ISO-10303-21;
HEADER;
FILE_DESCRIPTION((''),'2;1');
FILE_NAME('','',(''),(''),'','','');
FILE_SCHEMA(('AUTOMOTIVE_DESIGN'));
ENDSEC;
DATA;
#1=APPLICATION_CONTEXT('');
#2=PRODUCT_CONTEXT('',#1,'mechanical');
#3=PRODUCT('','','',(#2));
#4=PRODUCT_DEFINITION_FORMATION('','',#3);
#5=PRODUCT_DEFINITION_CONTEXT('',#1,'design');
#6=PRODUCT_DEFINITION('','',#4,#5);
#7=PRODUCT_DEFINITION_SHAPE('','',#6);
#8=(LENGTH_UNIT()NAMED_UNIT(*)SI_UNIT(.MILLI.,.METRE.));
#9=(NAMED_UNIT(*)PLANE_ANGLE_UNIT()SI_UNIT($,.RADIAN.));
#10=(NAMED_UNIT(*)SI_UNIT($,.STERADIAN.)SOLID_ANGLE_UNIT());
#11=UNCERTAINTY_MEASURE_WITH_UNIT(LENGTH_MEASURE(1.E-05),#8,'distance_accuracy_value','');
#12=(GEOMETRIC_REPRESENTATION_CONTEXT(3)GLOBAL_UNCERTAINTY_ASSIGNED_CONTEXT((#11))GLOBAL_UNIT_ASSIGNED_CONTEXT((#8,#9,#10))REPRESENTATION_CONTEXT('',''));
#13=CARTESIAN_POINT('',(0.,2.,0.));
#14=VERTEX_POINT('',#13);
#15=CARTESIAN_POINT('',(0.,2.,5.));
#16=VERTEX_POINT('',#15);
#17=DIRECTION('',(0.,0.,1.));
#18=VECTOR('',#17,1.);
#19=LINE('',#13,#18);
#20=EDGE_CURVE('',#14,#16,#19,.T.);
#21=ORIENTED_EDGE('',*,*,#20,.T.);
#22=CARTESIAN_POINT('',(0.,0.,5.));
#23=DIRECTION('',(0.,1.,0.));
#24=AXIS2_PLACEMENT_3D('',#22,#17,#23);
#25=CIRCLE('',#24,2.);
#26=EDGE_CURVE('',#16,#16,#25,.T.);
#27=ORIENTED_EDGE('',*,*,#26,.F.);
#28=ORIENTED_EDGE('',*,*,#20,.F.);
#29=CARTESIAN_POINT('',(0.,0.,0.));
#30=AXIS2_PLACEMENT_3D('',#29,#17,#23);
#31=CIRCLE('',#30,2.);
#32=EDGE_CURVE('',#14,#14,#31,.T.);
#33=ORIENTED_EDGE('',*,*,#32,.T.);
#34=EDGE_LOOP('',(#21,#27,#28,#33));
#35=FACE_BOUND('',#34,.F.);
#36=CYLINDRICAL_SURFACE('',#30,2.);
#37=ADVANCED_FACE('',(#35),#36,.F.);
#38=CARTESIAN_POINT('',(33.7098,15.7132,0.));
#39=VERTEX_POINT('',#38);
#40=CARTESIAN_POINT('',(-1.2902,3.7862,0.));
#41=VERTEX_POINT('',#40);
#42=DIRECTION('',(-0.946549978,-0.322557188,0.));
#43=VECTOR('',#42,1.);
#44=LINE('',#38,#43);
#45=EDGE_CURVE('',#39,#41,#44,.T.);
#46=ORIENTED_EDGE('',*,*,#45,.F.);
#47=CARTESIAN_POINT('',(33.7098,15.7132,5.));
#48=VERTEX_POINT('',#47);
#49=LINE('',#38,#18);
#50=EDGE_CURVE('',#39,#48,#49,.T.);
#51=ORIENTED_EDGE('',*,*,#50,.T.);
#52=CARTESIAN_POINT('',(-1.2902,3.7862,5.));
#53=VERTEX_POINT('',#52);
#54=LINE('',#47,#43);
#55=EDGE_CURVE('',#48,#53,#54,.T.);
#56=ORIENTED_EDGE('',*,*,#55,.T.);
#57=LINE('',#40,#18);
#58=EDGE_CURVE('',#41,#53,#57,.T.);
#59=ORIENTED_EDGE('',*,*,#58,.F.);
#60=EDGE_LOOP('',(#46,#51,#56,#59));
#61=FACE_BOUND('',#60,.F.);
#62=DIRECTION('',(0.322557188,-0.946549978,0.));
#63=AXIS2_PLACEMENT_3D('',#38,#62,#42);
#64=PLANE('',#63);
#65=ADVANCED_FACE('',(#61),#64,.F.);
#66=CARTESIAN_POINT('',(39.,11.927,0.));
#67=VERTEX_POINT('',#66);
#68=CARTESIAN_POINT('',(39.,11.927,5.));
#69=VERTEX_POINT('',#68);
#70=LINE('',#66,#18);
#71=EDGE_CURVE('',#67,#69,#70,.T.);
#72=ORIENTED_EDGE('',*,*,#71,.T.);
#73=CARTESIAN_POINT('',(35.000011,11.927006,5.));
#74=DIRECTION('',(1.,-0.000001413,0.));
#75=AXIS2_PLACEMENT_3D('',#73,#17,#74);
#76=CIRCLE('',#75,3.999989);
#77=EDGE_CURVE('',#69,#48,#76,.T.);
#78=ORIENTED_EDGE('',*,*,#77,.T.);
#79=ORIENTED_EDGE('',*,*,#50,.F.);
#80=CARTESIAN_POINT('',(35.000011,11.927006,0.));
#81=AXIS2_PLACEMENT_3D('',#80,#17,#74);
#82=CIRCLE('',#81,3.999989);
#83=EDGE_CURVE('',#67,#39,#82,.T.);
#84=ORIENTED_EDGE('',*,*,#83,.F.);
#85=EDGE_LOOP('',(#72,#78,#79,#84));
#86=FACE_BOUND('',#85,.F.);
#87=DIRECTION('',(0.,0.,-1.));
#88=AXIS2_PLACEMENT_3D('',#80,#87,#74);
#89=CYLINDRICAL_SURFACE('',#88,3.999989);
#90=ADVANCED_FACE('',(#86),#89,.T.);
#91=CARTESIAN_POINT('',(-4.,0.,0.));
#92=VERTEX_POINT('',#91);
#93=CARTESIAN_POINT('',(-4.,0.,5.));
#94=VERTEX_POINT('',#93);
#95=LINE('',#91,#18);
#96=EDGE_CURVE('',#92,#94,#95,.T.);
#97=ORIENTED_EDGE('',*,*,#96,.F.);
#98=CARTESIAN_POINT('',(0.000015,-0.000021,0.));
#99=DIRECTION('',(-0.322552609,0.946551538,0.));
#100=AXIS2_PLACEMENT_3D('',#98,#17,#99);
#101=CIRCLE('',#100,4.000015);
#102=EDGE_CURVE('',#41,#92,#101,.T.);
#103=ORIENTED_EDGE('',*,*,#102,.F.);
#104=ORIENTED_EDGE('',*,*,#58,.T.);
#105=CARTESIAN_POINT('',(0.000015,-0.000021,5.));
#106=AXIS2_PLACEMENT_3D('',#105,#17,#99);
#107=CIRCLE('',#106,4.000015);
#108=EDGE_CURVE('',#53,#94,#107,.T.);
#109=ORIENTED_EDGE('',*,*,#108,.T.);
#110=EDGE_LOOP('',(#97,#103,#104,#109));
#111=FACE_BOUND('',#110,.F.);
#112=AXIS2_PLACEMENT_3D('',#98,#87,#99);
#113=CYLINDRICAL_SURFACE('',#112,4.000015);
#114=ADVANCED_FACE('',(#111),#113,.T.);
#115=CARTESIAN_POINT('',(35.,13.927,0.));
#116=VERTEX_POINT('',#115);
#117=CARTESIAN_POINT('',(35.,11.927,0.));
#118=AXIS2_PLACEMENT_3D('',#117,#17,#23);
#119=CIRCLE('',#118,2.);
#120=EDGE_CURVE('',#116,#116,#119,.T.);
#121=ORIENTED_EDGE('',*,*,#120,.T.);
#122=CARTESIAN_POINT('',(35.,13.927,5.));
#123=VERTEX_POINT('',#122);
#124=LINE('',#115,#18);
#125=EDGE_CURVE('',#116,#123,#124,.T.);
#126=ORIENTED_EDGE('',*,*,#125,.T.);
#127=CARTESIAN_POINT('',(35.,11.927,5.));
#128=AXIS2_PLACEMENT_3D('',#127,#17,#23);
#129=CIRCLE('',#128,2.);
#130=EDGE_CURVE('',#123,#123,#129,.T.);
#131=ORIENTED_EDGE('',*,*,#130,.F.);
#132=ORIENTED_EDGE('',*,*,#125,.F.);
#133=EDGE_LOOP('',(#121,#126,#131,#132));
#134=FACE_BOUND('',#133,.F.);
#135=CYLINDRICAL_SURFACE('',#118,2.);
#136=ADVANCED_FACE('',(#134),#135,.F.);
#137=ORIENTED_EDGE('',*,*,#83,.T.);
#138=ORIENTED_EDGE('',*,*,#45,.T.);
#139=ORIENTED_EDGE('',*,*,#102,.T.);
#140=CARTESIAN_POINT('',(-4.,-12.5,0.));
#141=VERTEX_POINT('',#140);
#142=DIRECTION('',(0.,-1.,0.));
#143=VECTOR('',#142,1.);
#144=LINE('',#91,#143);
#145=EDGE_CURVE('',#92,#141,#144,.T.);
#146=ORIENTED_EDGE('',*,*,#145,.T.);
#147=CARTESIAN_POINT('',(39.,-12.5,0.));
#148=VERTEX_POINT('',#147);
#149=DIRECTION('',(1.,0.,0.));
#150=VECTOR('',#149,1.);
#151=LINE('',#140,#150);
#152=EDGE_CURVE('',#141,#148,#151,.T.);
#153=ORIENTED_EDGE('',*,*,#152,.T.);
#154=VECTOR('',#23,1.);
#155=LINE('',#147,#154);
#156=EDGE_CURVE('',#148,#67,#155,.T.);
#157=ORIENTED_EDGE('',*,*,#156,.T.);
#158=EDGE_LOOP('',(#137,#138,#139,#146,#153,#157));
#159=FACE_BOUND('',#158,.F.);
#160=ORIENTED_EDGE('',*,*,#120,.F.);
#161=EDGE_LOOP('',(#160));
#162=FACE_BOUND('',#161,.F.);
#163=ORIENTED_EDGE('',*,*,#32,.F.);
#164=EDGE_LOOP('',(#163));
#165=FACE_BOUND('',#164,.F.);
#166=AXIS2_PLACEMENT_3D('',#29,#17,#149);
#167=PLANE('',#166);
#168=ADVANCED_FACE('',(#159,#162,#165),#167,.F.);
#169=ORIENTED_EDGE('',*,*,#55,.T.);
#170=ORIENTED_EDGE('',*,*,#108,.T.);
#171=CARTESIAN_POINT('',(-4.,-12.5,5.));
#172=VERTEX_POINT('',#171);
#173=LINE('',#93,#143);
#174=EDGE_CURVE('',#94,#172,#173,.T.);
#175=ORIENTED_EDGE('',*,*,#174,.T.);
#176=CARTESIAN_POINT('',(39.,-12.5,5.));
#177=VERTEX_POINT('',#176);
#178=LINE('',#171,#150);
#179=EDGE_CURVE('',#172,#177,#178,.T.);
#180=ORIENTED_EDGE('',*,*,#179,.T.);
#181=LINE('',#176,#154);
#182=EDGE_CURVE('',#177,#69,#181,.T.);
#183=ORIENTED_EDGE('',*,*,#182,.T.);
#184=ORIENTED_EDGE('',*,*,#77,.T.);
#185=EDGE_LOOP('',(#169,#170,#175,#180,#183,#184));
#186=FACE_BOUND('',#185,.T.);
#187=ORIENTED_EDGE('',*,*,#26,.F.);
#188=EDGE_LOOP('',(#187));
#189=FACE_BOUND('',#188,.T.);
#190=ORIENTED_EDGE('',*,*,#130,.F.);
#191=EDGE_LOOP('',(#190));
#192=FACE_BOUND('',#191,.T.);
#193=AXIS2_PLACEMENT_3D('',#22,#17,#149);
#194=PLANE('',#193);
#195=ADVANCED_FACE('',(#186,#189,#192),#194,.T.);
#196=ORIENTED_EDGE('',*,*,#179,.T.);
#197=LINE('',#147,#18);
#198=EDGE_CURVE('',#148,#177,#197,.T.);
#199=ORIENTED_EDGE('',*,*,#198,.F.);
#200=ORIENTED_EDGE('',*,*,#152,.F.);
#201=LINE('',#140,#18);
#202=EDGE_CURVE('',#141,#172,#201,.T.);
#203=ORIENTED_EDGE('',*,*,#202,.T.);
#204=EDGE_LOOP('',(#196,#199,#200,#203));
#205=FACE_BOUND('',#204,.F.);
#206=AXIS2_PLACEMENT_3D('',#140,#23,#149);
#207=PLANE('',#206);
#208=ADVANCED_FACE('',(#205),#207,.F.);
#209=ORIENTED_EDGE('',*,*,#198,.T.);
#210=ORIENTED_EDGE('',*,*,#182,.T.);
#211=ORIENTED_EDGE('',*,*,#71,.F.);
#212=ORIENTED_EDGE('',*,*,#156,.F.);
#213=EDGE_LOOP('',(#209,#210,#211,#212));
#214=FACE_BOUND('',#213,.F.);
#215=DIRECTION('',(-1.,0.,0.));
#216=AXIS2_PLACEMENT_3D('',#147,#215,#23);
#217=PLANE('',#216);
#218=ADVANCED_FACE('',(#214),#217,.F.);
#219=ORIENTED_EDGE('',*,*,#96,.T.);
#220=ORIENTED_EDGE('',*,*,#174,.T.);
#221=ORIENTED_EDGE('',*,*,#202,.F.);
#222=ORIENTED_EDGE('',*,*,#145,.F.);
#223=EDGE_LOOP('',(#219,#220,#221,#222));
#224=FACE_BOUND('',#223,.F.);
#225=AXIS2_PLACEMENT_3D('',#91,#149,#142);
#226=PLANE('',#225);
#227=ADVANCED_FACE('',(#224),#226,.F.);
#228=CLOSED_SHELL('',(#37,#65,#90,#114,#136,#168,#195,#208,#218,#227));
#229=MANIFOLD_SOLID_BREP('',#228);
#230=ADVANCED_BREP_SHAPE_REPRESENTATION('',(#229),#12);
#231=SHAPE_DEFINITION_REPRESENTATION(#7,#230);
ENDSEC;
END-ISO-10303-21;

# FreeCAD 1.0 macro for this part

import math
import FreeCAD as App
import Part
import Sketcher
from FreeCAD import Vector
Q = App.Units.Quantity

doc = App.newDocument("Part")
body = doc.addObject("PartDesign::Body", "Body")

sketch1 = body.newObject("Sketcher::SketchObject", "Sketch")
sketch1.AttachmentSupport = (doc.getObject("XY_Plane"), [""])
sketch1.MapMode = "FlatFace"
sketch1.addGeometry(Part.ArcOfCircle(Part.Circle(Vector(35, 11.9, 0), Vector(0, 0, 1), 4), math.radians(0), math.radians(109)), False)
sketch1.addGeometry(Part.LineSegment(Vector(33.7, 15.7, 0), Vector(-1.3, 3.8, 0)), False)
sketch1.addGeometry(Part.ArcOfCircle(Part.Circle(Vector(0, 0, 0), Vector(0, 0, 1), 4), math.radians(109), math.radians(180)), False)
sketch1.addGeometry(Part.LineSegment(Vector(-4, 0, 0), Vector(-4, -12.5, 0)), False)
sketch1.addGeometry(Part.LineSegment(Vector(-4, -12.5, 0), Vector(39, -12.5, 0)), False)
sketch1.addGeometry(Part.LineSegment(Vector(39, -12.5, 0), Vector(39, 11.9, 0)), False)
sketch1.addConstraint(Sketcher.Constraint("Tangent", 0, 2, 1, 1))
sketch1.addConstraint(Sketcher.Constraint("Tangent", 1, 2, 2, 1))
sketch1.addConstraint(Sketcher.Constraint("Tangent", 2, 2, 3, 1))
sketch1.addConstraint(Sketcher.Constraint("Coincident", 3, 2, 4, 1))
sketch1.addConstraint(Sketcher.Constraint("Coincident", 4, 2, 5, 1))
sketch1.addConstraint(Sketcher.Constraint("Tangent", 5, 2, 0, 1))
sketch1.addConstraint(Sketcher.Constraint("Vertical", 3))
sketch1.addConstraint(Sketcher.Constraint("Horizontal", 4))
sketch1.addConstraint(Sketcher.Constraint("Vertical", 5))
sketch1.addConstraint(Sketcher.Constraint("Coincident", 2, 3, -1, 1))
sketch1.addConstraint(Sketcher.Constraint("Equal", 0, 2))
sketch1.addConstraint(Sketcher.Constraint("Radius", 0, Q("4 mm")))
sketch1.addConstraint(Sketcher.Constraint("DistanceY", 3, 2, 3, 1, Q("12.5 mm")))
sketch1.addConstraint(Sketcher.Constraint("DistanceX", -1, 1, 0, 3, Q("35 mm")))
sketch1.addConstraint(Sketcher.Constraint("DistanceY", -1, 1, 0, 3, Q("11.927 mm")))
pad1 = body.newObject("PartDesign::Pad", "Pad")
pad1.Profile = sketch1
pad1.Length = 5

sketch2 = body.newObject("Sketcher::SketchObject", "Sketch001")
sketch2.AttachmentSupport = (doc.getObject("XY_Plane"), [""])
sketch2.MapMode = "FlatFace"
sketch2.addGeometry(Part.Circle(Vector(0, 0, 0), Vector(0, 0, 1), 2), False)
sketch2.addGeometry(Part.Circle(Vector(35, 11.9, 0), Vector(0, 0, 1), 2), False)
sketch2.addConstraint(Sketcher.Constraint("Coincident", 0, 3, -1, 1))
sketch2.addConstraint(Sketcher.Constraint("Equal", 0, 1))
sketch2.addConstraint(Sketcher.Constraint("Diameter", 0, Q("4 mm")))
sketch2.addConstraint(Sketcher.Constraint("DistanceX", -1, 1, 1, 3, Q("35 mm")))
sketch2.addConstraint(Sketcher.Constraint("DistanceY", -1, 1, 1, 3, Q("11.927 mm")))
doc.recompute()
hole = body.newObject("PartDesign::Hole", "Hole")
hole.Profile = sketch2
hole.ThreadType = "None"
hole.Diameter = 4
hole.DepthType = "ThroughAll"
hole.Reversed = True

doc.recompute()
